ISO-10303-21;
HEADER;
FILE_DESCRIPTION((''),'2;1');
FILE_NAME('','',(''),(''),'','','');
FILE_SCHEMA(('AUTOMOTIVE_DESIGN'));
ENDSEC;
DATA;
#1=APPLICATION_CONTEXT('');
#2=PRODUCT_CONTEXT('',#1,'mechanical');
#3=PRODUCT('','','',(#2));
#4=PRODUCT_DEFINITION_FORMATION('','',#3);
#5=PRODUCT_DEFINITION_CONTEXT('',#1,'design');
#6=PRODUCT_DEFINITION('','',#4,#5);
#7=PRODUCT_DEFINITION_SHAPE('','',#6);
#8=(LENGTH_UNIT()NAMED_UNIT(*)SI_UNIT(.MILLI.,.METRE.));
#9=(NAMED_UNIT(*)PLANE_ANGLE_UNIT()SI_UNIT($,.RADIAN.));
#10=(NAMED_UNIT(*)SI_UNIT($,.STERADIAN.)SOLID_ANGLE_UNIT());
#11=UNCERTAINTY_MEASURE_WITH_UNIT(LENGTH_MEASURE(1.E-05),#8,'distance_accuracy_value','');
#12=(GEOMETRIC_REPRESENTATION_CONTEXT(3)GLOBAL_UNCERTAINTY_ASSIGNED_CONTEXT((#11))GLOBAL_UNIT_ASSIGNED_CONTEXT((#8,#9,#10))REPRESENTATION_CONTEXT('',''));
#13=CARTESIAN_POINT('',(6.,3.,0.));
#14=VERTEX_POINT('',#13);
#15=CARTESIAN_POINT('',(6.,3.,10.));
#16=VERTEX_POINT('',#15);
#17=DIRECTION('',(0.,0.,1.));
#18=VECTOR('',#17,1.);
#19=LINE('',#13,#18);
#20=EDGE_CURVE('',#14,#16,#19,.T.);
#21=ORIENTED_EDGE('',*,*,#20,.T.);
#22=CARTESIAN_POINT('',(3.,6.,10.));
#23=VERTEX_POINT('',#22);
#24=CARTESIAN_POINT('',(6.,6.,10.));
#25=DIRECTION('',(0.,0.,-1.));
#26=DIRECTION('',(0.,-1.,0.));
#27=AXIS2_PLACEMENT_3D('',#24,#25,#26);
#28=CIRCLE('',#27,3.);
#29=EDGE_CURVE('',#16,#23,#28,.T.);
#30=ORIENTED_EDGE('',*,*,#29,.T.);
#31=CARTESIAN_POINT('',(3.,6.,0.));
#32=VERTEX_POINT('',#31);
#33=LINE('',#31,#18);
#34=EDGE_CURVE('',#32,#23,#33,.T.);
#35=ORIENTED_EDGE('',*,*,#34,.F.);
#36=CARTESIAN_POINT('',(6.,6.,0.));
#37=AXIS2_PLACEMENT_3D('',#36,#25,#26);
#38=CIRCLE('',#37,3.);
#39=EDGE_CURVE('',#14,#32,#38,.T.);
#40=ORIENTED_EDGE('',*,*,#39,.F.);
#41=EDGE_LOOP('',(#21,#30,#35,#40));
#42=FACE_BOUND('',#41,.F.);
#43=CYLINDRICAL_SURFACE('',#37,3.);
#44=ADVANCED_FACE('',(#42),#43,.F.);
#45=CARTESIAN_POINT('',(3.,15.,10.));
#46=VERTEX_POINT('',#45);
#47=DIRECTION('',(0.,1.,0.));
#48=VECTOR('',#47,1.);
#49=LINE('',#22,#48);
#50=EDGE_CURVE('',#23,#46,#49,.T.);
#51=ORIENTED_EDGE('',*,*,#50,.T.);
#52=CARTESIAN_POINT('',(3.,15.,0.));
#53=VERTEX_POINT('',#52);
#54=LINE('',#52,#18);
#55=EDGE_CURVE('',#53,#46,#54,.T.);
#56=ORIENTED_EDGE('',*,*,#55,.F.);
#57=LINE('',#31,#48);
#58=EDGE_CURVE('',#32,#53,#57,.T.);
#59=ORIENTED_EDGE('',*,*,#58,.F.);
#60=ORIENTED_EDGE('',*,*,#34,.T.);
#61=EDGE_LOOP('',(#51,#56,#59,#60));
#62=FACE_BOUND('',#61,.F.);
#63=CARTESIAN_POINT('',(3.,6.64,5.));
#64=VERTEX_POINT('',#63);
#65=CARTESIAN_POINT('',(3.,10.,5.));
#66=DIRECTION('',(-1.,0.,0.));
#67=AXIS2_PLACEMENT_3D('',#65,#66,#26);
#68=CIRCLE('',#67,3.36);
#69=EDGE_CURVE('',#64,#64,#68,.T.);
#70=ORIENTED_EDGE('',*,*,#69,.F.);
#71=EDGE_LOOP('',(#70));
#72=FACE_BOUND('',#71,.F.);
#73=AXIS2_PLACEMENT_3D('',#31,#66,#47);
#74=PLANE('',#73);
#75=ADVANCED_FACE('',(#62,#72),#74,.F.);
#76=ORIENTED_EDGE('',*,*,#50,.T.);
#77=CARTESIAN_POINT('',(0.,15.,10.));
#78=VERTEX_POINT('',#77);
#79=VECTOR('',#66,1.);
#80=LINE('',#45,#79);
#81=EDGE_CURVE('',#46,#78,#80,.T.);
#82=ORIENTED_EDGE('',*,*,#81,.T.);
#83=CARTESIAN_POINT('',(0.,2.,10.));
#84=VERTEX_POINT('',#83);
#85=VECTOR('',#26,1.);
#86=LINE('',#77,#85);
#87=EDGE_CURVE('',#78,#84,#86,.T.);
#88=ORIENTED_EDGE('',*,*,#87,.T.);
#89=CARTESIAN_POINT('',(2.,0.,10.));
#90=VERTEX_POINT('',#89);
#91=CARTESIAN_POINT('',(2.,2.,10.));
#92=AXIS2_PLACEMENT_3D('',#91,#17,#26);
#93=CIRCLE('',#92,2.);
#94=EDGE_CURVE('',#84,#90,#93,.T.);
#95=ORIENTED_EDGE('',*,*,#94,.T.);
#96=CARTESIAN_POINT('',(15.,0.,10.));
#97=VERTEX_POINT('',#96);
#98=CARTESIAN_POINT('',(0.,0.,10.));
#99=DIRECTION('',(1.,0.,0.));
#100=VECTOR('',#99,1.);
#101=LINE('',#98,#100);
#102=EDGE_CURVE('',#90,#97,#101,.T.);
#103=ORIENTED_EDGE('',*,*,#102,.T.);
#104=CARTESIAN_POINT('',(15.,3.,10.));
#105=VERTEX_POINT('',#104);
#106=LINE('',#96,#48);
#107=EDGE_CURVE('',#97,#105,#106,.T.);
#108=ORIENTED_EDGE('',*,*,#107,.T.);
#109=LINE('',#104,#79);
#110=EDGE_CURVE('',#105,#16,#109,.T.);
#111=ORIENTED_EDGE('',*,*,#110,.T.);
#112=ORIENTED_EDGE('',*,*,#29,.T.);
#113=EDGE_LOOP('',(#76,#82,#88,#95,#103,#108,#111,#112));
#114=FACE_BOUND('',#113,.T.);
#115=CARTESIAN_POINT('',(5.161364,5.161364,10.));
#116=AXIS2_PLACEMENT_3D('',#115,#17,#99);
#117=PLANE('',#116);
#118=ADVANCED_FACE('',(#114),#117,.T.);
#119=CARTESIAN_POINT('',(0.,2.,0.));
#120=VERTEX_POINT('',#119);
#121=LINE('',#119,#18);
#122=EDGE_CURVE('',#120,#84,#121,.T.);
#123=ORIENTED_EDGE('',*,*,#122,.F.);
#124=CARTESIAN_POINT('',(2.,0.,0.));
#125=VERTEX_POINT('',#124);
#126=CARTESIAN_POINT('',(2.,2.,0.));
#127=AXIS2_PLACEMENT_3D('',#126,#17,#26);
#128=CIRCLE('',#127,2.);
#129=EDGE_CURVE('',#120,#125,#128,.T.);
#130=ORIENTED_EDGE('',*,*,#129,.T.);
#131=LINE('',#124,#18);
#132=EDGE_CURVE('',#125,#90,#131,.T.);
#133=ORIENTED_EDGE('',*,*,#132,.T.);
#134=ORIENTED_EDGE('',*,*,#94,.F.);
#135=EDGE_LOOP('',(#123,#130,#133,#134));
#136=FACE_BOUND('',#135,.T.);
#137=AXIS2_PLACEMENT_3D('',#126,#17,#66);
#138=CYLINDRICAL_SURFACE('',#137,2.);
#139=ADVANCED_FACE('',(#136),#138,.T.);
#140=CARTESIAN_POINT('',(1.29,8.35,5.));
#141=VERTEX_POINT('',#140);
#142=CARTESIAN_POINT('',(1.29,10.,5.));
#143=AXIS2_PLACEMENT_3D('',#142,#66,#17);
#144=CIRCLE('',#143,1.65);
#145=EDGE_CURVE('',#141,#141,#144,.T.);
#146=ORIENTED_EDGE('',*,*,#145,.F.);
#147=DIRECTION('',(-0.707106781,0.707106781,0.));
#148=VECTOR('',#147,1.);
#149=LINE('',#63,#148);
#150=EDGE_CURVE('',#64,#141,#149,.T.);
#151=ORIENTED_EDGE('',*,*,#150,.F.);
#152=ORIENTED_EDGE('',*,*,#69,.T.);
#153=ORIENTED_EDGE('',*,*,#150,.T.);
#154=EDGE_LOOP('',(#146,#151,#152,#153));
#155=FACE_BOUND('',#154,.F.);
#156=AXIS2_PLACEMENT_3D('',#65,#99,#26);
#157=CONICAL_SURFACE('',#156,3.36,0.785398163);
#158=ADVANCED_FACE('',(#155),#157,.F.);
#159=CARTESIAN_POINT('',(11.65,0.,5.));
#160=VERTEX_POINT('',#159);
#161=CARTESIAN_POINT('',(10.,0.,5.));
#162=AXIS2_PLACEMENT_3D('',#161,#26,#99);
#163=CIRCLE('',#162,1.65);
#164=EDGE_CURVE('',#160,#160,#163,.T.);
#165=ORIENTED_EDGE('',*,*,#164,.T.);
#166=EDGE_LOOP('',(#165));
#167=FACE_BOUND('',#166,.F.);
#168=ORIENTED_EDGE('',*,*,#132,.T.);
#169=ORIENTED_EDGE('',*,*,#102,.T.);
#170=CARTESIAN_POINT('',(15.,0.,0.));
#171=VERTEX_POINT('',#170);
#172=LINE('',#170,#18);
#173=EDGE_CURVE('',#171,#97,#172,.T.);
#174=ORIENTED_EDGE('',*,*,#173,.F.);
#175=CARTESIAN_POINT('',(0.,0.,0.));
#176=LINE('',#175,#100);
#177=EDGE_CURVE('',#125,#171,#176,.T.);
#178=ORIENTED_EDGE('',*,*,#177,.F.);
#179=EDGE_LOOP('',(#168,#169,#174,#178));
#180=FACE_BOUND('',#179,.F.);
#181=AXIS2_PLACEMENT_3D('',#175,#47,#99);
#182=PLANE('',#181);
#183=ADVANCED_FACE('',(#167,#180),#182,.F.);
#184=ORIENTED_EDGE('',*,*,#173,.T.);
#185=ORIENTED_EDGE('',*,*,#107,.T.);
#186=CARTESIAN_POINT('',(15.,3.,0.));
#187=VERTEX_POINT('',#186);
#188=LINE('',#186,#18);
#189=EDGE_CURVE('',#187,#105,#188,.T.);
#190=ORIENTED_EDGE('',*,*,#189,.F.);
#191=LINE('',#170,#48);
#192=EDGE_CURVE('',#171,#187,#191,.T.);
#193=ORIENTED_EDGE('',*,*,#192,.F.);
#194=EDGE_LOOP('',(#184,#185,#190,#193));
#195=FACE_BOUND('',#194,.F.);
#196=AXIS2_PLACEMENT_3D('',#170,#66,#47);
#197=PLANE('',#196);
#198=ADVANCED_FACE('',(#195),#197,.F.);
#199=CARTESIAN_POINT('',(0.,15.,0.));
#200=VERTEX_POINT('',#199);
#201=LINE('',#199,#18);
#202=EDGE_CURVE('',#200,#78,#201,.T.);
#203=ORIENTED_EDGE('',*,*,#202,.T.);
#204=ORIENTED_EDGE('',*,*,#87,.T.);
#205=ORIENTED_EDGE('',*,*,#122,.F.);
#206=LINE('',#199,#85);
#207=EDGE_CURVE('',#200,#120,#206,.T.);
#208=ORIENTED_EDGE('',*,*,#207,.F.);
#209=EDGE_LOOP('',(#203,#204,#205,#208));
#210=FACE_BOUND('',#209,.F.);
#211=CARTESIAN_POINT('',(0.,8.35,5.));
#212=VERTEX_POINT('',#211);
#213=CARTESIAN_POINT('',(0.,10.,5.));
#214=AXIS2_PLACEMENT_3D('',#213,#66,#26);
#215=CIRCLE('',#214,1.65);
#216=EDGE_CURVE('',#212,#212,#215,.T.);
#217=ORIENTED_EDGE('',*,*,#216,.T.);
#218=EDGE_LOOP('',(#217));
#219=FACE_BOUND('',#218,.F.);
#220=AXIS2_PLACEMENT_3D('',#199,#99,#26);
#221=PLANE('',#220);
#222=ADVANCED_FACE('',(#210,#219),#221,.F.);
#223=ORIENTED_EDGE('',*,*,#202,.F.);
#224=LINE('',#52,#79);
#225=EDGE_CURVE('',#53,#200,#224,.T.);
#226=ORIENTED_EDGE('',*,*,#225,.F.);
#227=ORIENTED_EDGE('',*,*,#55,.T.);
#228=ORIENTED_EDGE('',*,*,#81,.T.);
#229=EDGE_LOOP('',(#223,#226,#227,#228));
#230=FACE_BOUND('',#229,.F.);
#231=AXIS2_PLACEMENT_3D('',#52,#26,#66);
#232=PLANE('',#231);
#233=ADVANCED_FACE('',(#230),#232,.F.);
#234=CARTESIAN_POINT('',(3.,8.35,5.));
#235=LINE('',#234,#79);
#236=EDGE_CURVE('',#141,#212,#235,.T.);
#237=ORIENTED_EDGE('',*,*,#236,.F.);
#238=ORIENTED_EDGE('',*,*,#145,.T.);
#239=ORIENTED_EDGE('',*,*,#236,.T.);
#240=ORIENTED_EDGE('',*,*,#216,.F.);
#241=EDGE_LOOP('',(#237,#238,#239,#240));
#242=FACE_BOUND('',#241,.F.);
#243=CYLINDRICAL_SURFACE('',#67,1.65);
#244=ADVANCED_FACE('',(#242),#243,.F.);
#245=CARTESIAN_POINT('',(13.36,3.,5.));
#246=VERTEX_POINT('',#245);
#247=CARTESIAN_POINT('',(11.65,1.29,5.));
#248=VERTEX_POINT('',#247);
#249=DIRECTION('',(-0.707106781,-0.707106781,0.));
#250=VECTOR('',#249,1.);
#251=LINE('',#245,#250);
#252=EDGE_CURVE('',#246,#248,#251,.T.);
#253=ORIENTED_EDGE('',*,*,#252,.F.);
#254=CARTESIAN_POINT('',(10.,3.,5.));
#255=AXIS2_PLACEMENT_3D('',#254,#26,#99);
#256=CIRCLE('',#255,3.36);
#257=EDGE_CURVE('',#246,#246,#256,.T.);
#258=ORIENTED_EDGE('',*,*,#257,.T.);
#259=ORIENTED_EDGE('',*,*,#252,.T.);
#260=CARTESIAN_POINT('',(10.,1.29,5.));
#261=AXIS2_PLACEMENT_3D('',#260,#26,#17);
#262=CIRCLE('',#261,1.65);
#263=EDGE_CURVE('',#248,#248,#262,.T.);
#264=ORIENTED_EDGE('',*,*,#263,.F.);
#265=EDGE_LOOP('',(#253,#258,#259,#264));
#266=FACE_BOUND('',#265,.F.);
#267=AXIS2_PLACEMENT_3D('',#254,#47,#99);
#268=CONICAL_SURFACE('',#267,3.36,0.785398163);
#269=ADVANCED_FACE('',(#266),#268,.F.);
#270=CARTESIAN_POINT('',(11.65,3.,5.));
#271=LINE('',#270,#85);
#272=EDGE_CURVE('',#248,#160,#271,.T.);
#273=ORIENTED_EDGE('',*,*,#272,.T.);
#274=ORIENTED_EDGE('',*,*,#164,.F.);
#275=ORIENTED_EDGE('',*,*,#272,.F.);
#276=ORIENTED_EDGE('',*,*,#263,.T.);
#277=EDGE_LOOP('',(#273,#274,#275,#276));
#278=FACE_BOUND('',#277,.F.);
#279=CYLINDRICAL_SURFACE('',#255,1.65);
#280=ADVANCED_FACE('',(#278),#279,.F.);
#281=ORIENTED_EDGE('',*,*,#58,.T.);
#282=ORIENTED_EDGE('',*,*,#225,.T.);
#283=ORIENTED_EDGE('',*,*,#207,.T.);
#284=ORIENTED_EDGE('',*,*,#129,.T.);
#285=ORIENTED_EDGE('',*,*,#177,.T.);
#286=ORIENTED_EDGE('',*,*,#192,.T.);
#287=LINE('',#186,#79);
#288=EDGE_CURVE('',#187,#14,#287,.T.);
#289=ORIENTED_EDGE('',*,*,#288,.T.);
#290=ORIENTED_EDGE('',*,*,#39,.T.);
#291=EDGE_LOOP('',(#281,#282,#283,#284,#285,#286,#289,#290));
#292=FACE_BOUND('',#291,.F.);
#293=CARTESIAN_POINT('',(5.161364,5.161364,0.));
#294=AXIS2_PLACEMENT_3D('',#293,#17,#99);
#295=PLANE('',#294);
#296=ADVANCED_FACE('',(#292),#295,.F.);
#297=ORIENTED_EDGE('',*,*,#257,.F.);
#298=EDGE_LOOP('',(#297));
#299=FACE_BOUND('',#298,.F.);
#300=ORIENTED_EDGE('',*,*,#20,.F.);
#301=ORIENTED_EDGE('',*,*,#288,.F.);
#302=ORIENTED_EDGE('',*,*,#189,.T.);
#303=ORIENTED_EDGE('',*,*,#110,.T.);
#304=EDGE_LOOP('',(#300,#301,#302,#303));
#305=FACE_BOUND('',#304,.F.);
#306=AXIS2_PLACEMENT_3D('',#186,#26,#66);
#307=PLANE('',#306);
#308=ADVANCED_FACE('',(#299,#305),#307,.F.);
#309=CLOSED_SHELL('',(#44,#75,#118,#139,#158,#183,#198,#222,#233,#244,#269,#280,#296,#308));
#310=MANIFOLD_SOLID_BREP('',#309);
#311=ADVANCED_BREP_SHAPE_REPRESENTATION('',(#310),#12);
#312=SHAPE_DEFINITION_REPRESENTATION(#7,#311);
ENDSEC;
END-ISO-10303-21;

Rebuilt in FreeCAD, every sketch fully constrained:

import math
import FreeCAD as App
import Part
import Sketcher
Q = App.Units.Quantity


def edges_at(feature, points):
    """Names of the edges that pass closest to the given points."""
    edges = feature.Shape.Edges
    near = lambda p: min(range(len(edges)), key=lambda i: edges[i].distToShape(Part.Vertex(*p))[0])
    return sorted({f"Edge{near(p) + 1}" for p in points})

doc = App.newDocument("Part")
params = doc.addObject("Spreadsheet::Sheet", "Params")
for row, (alias, value) in enumerate([
    ("sketch1_radius", "3 mm"),
    ("sketch1_width", "15 mm"),
    ("sketch1_width2", "9 mm"),
    ("pad1_length", "10 mm"),
    ("sketch2_diameter", "3.3 mm"),
    ("hole_diameter", "3.3 mm"),
    ("hole_csink_diameter", "6.72 mm"),
    ("sketch3_diameter", "3.3 mm"),
    ("hole2_diameter", "3.3 mm"),
    ("hole2_csink_diameter", "6.72 mm"),
    ("fillet_radius", "2 mm"),
], start=1):
    params.set(f"A{row}", alias)
    params.set(f"B{row}", "=" + value)
    params.setAlias(f"B{row}", alias)

body = doc.addObject("PartDesign::Body", "Body")

# Sketch on XY plane
sketch1 = body.newObject("Sketcher::SketchObject", "Sketch")
sketch1.AttachmentSupport = (doc.getObject("XY_Plane"), [""])
sketch1.MapMode = "FlatFace"
sketch1.addGeometry([
    Part.LineSegment(App.Vector(0, 15, 0), App.Vector(0, 0, 0)),  # 0
    Part.LineSegment(App.Vector(0, 0, 0), App.Vector(15, 0, 0)),  # 1
    Part.LineSegment(App.Vector(15, 0, 0), App.Vector(15, 3, 0)),  # 2
    Part.LineSegment(App.Vector(15, 3, 0), App.Vector(6, 3, 0)),  # 3
    Part.ArcOfCircle(Part.Circle(App.Vector(6, 6, 0), App.Vector(0, 0, 1), 3), math.radians(180), math.radians(270)),  # 4
    Part.LineSegment(App.Vector(3, 6, 0), App.Vector(3, 15, 0)),  # 5
    Part.LineSegment(App.Vector(3, 15, 0), App.Vector(0, 15, 0)),  # 6
], False)
sketch1.addConstraint([
    Sketcher.Constraint("Coincident", 0, 2, 1, 1),
    Sketcher.Constraint("Coincident", 1, 2, 2, 1),
    Sketcher.Constraint("Coincident", 2, 2, 3, 1),
    Sketcher.Constraint("Tangent", 3, 2, 4, 2),
    Sketcher.Constraint("Tangent", 4, 1, 5, 1),
    Sketcher.Constraint("Coincident", 5, 2, 6, 1),
    Sketcher.Constraint("Coincident", 6, 2, 0, 1),
    Sketcher.Constraint("Vertical", 0),
    Sketcher.Constraint("Horizontal", 1),
    Sketcher.Constraint("Vertical", 2),
    Sketcher.Constraint("Horizontal", 3),
    Sketcher.Constraint("Vertical", 5),
    Sketcher.Constraint("Horizontal", 6),
    Sketcher.Constraint("Coincident", 0, 2, -1, 1),
    Sketcher.Constraint("Equal", 1, 0),
    Sketcher.Constraint("Equal", 6, 2),
    Sketcher.Constraint("Radius", 4, Q("3 mm")),
    Sketcher.Constraint("DistanceX", 1, 1, 1, 2, Q("15 mm")),
    Sketcher.Constraint("DistanceX", 3, 2, 3, 1, Q("9 mm")),
])
sketch1.setExpression("Constraints[16]", "Params.sketch1_radius")
sketch1.setExpression("Constraints[17]", "Params.sketch1_width")
sketch1.setExpression("Constraints[18]", "Params.sketch1_width2")
pad1 = body.newObject("PartDesign::Pad", "Pad")
pad1.Profile = sketch1
pad1.setExpression("Length", "Params.pad1_length")

# Sketch on YZ plane
sketch2 = body.newObject("Sketcher::SketchObject", "Sketch001")
sketch2.AttachmentSupport = (doc.getObject("YZ_Plane"), [""])
sketch2.MapMode = "FlatFace"
sketch2.AttachmentOffset = App.Placement(App.Vector(0, 0, 3), App.Rotation())
sketch2.addGeometry(Part.Circle(App.Vector(10, 5, 0), App.Vector(0, 0, 1), 1.6), False)
sketch2.addConstraint([
    Sketcher.Constraint("Diameter", 0, Q("3.3 mm")),
    Sketcher.Constraint("DistanceX", -1, 1, 0, 3, Q("10 mm")),
    Sketcher.Constraint("DistanceY", -1, 1, 0, 3, Q("5 mm")),
])
sketch2.setExpression("Constraints[0]", "Params.sketch2_diameter")
doc.recompute()
hole = body.newObject("PartDesign::Hole", "Hole")
hole.Profile = sketch2
hole.ThreadType = "None"
hole.setExpression("Diameter", "Params.hole_diameter")
hole.DepthType = "ThroughAll"
hole.HoleCutType = "Countersink"
hole.setExpression("HoleCutDiameter", "Params.hole_csink_diameter")
hole.HoleCutCountersinkAngle = 90

# Sketch on XZ plane
sketch3 = body.newObject("Sketcher::SketchObject", "Sketch002")
sketch3.AttachmentSupport = (doc.getObject("XZ_Plane"), [""])
sketch3.MapMode = "FlatFace"
sketch3.AttachmentOffset = App.Placement(App.Vector(0, 0, -3), App.Rotation())
sketch3.addGeometry(Part.Circle(App.Vector(10, 5, 0), App.Vector(0, 0, 1), 1.6), False)
sketch3.addConstraint([
    Sketcher.Constraint("Diameter", 0, Q("3.3 mm")),
    Sketcher.Constraint("DistanceX", -1, 1, 0, 3, Q("10 mm")),
    Sketcher.Constraint("DistanceY", -1, 1, 0, 3, Q("5 mm")),
])
sketch3.setExpression("Constraints[0]", "Params.sketch3_diameter")
doc.recompute()
hole2 = body.newObject("PartDesign::Hole", "Hole001")
hole2.Profile = sketch3
hole2.ThreadType = "None"
hole2.setExpression("Diameter", "Params.hole2_diameter")
hole2.DepthType = "ThroughAll"
hole2.HoleCutType = "Countersink"
hole2.setExpression("HoleCutDiameter", "Params.hole2_csink_diameter")
hole2.HoleCutCountersinkAngle = 90
hole2.Reversed = True
doc.recompute()

fillet = body.newObject("PartDesign::Fillet", "Fillet")
fillet.Base = (hole2, edges_at(hole2, [(0, 0, 5)]))
fillet.setExpression("Radius", "Params.fillet_radius")

doc.recompute()
